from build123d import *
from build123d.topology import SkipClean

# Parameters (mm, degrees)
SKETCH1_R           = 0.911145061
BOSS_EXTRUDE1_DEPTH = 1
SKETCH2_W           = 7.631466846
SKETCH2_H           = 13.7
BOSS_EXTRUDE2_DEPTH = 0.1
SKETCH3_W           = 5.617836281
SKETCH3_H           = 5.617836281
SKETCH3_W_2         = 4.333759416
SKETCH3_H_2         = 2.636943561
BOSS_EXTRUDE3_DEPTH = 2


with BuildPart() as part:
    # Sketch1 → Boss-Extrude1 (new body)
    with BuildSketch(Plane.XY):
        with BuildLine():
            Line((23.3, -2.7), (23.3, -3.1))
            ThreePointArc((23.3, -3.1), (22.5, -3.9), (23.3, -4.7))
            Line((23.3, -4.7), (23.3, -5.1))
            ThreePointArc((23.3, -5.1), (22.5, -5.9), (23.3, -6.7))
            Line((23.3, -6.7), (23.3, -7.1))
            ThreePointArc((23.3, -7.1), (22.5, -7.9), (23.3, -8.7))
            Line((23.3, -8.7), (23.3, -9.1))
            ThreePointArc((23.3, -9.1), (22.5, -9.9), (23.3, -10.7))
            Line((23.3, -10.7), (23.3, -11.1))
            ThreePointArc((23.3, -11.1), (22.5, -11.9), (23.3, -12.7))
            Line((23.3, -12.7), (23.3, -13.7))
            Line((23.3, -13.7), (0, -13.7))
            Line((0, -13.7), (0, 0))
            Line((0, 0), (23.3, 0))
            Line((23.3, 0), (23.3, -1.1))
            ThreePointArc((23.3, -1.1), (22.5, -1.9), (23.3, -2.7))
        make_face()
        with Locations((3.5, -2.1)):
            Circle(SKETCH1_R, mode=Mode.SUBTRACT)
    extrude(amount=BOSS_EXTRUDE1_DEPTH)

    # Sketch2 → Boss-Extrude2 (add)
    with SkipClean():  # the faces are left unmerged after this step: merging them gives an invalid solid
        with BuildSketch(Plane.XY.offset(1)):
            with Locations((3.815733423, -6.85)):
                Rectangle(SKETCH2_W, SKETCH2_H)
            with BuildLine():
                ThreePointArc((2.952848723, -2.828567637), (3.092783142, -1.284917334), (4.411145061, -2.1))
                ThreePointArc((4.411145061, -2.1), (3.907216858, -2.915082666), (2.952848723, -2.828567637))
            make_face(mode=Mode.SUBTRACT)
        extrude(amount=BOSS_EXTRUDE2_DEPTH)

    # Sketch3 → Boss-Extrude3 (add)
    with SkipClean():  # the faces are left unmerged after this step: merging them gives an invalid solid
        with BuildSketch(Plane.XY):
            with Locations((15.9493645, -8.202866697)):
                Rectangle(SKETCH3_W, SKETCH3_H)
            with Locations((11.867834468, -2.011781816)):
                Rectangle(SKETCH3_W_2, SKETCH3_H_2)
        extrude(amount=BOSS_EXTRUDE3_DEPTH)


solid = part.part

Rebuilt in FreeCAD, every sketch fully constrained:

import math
import FreeCAD as App
import Part
import Sketcher
Q = App.Units.Quantity

doc = App.newDocument("Part")
body = doc.addObject("PartDesign::Body", "Body")

sketch1 = doc.addObject("Sketcher::SketchObject", "Sketch")
body.addObject(sketch1)
sketch1.AttachmentSupport = (doc.XY_Plane, [""])
sketch1.MapMode = "FlatFace"
sketch1.addGeometry([
    Part.LineSegment(App.Vector(23.3, -3.1, 0), App.Vector(23.3, -2.7, 0)),
    Part.ArcOfCircle(Part.Circle(App.Vector(23.3, -1.9, 0), App.Vector(0, 0, 1), 0.8), math.radians(90), math.radians(270)),
    Part.LineSegment(App.Vector(23.3, -1.1, 0), App.Vector(23.3, 0, 0)),
    Part.LineSegment(App.Vector(23.3, 0, 0), App.Vector(0, 0, 0)),
    Part.LineSegment(App.Vector(0, 0, 0), App.Vector(0, -13.7, 0)),
    Part.LineSegment(App.Vector(0, -13.7, 0), App.Vector(23.3, -13.7, 0)),
    Part.LineSegment(App.Vector(23.3, -13.7, 0), App.Vector(23.3, -12.7, 0)),
    Part.ArcOfCircle(Part.Circle(App.Vector(23.3, -11.9, 0), App.Vector(0, 0, 1), 0.8), math.radians(90), math.radians(270)),
    Part.LineSegment(App.Vector(23.3, -11.1, 0), App.Vector(23.3, -10.7, 0)),
    Part.ArcOfCircle(Part.Circle(App.Vector(23.3, -9.9, 0), App.Vector(0, 0, 1), 0.8), math.radians(90), math.radians(270)),
    Part.LineSegment(App.Vector(23.3, -9.1, 0), App.Vector(23.3, -8.7, 0)),
    Part.ArcOfCircle(Part.Circle(App.Vector(23.3, -7.9, 0), App.Vector(0, 0, 1), 0.8), math.radians(90), math.radians(270)),
    Part.LineSegment(App.Vector(23.3, -7.1, 0), App.Vector(23.3, -6.7, 0)),
    Part.ArcOfCircle(Part.Circle(App.Vector(23.3, -5.9, 0), App.Vector(0, 0, 1), 0.8), math.radians(90), math.radians(270)),
    Part.LineSegment(App.Vector(23.3, -5.1, 0), App.Vector(23.3, -4.7, 0)),
    Part.ArcOfCircle(Part.Circle(App.Vector(23.3, -3.9, 0), App.Vector(0, 0, 1), 0.8), math.radians(90), math.radians(270)),
    Part.Circle(App.Vector(3.5, -2.1, 0), App.Vector(0, 0, 1), 0.91),
], False)
sketch1.addConstraint([
    Sketcher.Constraint("Coincident", 0, 2, 1, 2),
    Sketcher.Constraint("Coincident", 1, 1, 2, 1),
    Sketcher.Constraint("Coincident", 2, 2, 3, 1),
    Sketcher.Constraint("Coincident", 3, 2, 4, 1),
    Sketcher.Constraint("Coincident", 4, 2, 5, 1),
    Sketcher.Constraint("Coincident", 5, 2, 6, 1),
    Sketcher.Constraint("Coincident", 6, 2, 7, 2),
    Sketcher.Constraint("Coincident", 7, 1, 8, 1),
    Sketcher.Constraint("Coincident", 8, 2, 9, 2),
    Sketcher.Constraint("Coincident", 9, 1, 10, 1),
    Sketcher.Constraint("Coincident", 10, 2, 11, 2),
    Sketcher.Constraint("Coincident", 11, 1, 12, 1),
    Sketcher.Constraint("Coincident", 12, 2, 13, 2),
    Sketcher.Constraint("Coincident", 13, 1, 14, 1),
    Sketcher.Constraint("Coincident", 14, 2, 15, 2),
    Sketcher.Constraint("Coincident", 15, 1, 0, 1),
    Sketcher.Constraint("Vertical", 0),
    Sketcher.Constraint("Vertical", 2),
    Sketcher.Constraint("Horizontal", 3),
    Sketcher.Constraint("Vertical", 4),
    Sketcher.Constraint("Horizontal", 5),
    Sketcher.Constraint("Vertical", 6),
    Sketcher.Constraint("Vertical", 8),
    Sketcher.Constraint("Vertical", 10),
    Sketcher.Constraint("Vertical", 12),
    Sketcher.Constraint("Vertical", 14),
    Sketcher.Constraint("Coincident", 3, 2, -1, 1),
    Sketcher.Constraint("Equal", 1, 7),
    Sketcher.Constraint("Equal", 7, 9),
    Sketcher.Constraint("Equal", 9, 11),
    Sketcher.Constraint("Equal", 11, 13),
    Sketcher.Constraint("Equal", 13, 15),
    Sketcher.Constraint("Vertical", 1, 3, 7, 3),
    Sketcher.Constraint("Vertical", 7, 3, 9, 3),
    Sketcher.Constraint("Vertical", 9, 3, 11, 3),
    Sketcher.Constraint("Vertical", 11, 3, 13, 3),
    Sketcher.Constraint("Vertical", 13, 3, 15, 3),
    Sketcher.Constraint("Vertical", 15, 3, 0, 2),
    Sketcher.Constraint("Vertical", 0, 2, 1, 1),
    Sketcher.Constraint("Vertical", 2, 2, 5, 2),
    Sketcher.Constraint("Vertical", 6, 2, 7, 1),
    Sketcher.Constraint("Vertical", 8, 2, 9, 1),
    Sketcher.Constraint("Vertical", 10, 2, 11, 1),
    Sketcher.Constraint("Vertical", 12, 2, 13, 1),
    Sketcher.Constraint("Equal", 0, 8),
    Sketcher.Constraint("Equal", 8, 10),
    Sketcher.Constraint("Equal", 10, 12),
    Sketcher.Constraint("Equal", 12, 14),
    Sketcher.Constraint("Radius", 1, Q("0.8 mm")),
    Sketcher.Constraint("DistanceY", 6, 1, 6, 2, Q("1 mm")),
    Sketcher.Constraint("DistanceX", 3, 2, 3, 1, Q("23.3 mm")),
    Sketcher.Constraint("DistanceY", 0, 1, 0, 2, Q("0.4 mm")),
    Sketcher.Constraint("DistanceY", 2, 1, 2, 2, Q("1.1 mm")),
    Sketcher.Constraint("DistanceX", -1, 1, 16, 3, Q("3.5 mm")),
    Sketcher.Constraint("DistanceY", 16, 3, -1, 1, Q("2.1 mm")),
    Sketcher.Constraint("Diameter", 16, Q("1.82229 mm")),
])
pad1 = doc.addObject("PartDesign::Pad", "Pad")
body.addObject(pad1)
pad1.Profile = sketch1
pad1.Length = 1

sketch2 = doc.addObject("Sketcher::SketchObject", "Sketch001")
body.addObject(sketch2)
sketch2.AttachmentSupport = (doc.XY_Plane, [""])
sketch2.MapMode = "FlatFace"
sketch2.AttachmentOffset = App.Placement(App.Vector(0, 0, 1), App.Rotation())
sketch2.addGeometry([
    Part.LineSegment(App.Vector(0, 0, 0), App.Vector(0, -13.7, 0)),
    Part.LineSegment(App.Vector(0, -13.7, 0), App.Vector(7.6, -13.7, 0)),
    Part.LineSegment(App.Vector(7.6, -13.7, 0), App.Vector(7.6, 0, 0)),
    Part.LineSegment(App.Vector(7.6, 0, 0), App.Vector(0, 0, 0)),
    Part.ArcOfCircle(Part.Circle(App.Vector(3.5, -2.1, 0), App.Vector(0, 0, 1), 0.9), math.radians(-127), math.radians(0)),
    Part.ArcOfCircle(Part.Circle(App.Vector(3.5, -2.1, 0), App.Vector(0, 0, 1), 0.9), math.radians(0), math.radians(233)),
], False)
sketch2.addConstraint([
    Sketcher.Constraint("Coincident", 0, 2, 1, 1),
    Sketcher.Constraint("Coincident", 1, 2, 2, 1),
    Sketcher.Constraint("Coincident", 2, 2, 3, 1),
    Sketcher.Constraint("Coincident", 3, 2, 0, 1),
    Sketcher.Constraint("Tangent", 4, 1, 5, 2),
    Sketcher.Constraint("Coincident", 5, 1, 4, 2),
    Sketcher.Constraint("Vertical", 0),
    Sketcher.Constraint("Horizontal", 1),
    Sketcher.Constraint("Vertical", 2),
    Sketcher.Constraint("Horizontal", 3),
    Sketcher.Constraint("Coincident", 3, 2, -1, 1),
    Sketcher.Constraint("Horizontal", 4, 3, 5, 1),
    Sketcher.Constraint("DistanceY", 0, 2, 0, 1, Q("13.7 mm")),
    Sketcher.Constraint("DistanceX", -1, 1, 4, 3, Q("3.5 mm")),
    Sketcher.Constraint("DistanceY", 4, 3, -1, 1, Q("2.1 mm")),
    Sketcher.Constraint("Radius", 4, Q("0.911145 mm")),
    Sketcher.Constraint("DistanceX", 1, 1, 1, 2, Q("7.631467 mm")),
    Sketcher.Constraint("DistanceX", -1, 1, 4, 1, Q("2.952849 mm")),
])
pad2 = doc.addObject("PartDesign::Pad", "Pad001")
body.addObject(pad2)
pad2.Profile = sketch2
pad2.Length = 0.1

sketch3 = doc.addObject("Sketcher::SketchObject", "Sketch002")
body.addObject(sketch3)
sketch3.AttachmentSupport = (doc.XY_Plane, [""])
sketch3.MapMode = "FlatFace"
sketch3.addGeometry([
    Part.LineSegment(App.Vector(13.1, -5.4, 0), App.Vector(13.1, -11, 0)),
    Part.LineSegment(App.Vector(13.1, -11, 0), App.Vector(18.8, -11, 0)),
    Part.LineSegment(App.Vector(18.8, -11, 0), App.Vector(18.8, -5.4, 0)),
    Part.LineSegment(App.Vector(18.8, -5.4, 0), App.Vector(13.1, -5.4, 0)),
    Part.LineSegment(App.Vector(9.7, -0.7, 0), App.Vector(9.7, -3.3, 0)),
    Part.LineSegment(App.Vector(9.7, -3.3, 0), App.Vector(14, -3.3, 0)),
    Part.LineSegment(App.Vector(14, -3.3, 0), App.Vector(14, -0.7, 0)),
    Part.LineSegment(App.Vector(14, -0.7, 0), App.Vector(9.7, -0.7, 0)),
], False)
sketch3.addConstraint([
    Sketcher.Constraint("Coincident", 0, 2, 1, 1),
    Sketcher.Constraint("Coincident", 1, 2, 2, 1),
    Sketcher.Constraint("Coincident", 2, 2, 3, 1),
    Sketcher.Constraint("Coincident", 3, 2, 0, 1),
    Sketcher.Constraint("Coincident", 4, 2, 5, 1),
    Sketcher.Constraint("Coincident", 5, 2, 6, 1),
    Sketcher.Constraint("Coincident", 6, 2, 7, 1),
    Sketcher.Constraint("Coincident", 7, 2, 4, 1),
    Sketcher.Constraint("Vertical", 0),
    Sketcher.Constraint("Horizontal", 1),
    Sketcher.Constraint("Vertical", 2),
    Sketcher.Constraint("Horizontal", 3),
    Sketcher.Constraint("Vertical", 4),
    Sketcher.Constraint("Horizontal", 5),
    Sketcher.Constraint("Vertical", 6),
    Sketcher.Constraint("Horizontal", 7),
    Sketcher.Constraint("Equal", 3, 0),
    Sketcher.Constraint("DistanceX", 5, 1, 5, 2, Q("4.333759 mm")),
    Sketcher.Constraint("DistanceX", 1, 1, 1, 2, Q("5.617836 mm")),
    Sketcher.Constraint("DistanceY", 4, 2, 4, 1, Q("2.636944 mm")),
    Sketcher.Constraint("DistanceY", 2, 2, -1, 1, Q("5.393949 mm")),
    Sketcher.Constraint("DistanceY", 6, 2, -1, 1, Q("0.69331 mm")),
    Sketcher.Constraint("DistanceX", 4, 2, 3, 2, Q("3.439492 mm")),
    Sketcher.Constraint("DistanceX", -1, 1, 0, 2, Q("13.140446 mm")),
])
pad3 = doc.addObject("PartDesign::Pad", "Pad002")
body.addObject(pad3)
pad3.Profile = sketch3
pad3.Length = 2

doc.recompute()
